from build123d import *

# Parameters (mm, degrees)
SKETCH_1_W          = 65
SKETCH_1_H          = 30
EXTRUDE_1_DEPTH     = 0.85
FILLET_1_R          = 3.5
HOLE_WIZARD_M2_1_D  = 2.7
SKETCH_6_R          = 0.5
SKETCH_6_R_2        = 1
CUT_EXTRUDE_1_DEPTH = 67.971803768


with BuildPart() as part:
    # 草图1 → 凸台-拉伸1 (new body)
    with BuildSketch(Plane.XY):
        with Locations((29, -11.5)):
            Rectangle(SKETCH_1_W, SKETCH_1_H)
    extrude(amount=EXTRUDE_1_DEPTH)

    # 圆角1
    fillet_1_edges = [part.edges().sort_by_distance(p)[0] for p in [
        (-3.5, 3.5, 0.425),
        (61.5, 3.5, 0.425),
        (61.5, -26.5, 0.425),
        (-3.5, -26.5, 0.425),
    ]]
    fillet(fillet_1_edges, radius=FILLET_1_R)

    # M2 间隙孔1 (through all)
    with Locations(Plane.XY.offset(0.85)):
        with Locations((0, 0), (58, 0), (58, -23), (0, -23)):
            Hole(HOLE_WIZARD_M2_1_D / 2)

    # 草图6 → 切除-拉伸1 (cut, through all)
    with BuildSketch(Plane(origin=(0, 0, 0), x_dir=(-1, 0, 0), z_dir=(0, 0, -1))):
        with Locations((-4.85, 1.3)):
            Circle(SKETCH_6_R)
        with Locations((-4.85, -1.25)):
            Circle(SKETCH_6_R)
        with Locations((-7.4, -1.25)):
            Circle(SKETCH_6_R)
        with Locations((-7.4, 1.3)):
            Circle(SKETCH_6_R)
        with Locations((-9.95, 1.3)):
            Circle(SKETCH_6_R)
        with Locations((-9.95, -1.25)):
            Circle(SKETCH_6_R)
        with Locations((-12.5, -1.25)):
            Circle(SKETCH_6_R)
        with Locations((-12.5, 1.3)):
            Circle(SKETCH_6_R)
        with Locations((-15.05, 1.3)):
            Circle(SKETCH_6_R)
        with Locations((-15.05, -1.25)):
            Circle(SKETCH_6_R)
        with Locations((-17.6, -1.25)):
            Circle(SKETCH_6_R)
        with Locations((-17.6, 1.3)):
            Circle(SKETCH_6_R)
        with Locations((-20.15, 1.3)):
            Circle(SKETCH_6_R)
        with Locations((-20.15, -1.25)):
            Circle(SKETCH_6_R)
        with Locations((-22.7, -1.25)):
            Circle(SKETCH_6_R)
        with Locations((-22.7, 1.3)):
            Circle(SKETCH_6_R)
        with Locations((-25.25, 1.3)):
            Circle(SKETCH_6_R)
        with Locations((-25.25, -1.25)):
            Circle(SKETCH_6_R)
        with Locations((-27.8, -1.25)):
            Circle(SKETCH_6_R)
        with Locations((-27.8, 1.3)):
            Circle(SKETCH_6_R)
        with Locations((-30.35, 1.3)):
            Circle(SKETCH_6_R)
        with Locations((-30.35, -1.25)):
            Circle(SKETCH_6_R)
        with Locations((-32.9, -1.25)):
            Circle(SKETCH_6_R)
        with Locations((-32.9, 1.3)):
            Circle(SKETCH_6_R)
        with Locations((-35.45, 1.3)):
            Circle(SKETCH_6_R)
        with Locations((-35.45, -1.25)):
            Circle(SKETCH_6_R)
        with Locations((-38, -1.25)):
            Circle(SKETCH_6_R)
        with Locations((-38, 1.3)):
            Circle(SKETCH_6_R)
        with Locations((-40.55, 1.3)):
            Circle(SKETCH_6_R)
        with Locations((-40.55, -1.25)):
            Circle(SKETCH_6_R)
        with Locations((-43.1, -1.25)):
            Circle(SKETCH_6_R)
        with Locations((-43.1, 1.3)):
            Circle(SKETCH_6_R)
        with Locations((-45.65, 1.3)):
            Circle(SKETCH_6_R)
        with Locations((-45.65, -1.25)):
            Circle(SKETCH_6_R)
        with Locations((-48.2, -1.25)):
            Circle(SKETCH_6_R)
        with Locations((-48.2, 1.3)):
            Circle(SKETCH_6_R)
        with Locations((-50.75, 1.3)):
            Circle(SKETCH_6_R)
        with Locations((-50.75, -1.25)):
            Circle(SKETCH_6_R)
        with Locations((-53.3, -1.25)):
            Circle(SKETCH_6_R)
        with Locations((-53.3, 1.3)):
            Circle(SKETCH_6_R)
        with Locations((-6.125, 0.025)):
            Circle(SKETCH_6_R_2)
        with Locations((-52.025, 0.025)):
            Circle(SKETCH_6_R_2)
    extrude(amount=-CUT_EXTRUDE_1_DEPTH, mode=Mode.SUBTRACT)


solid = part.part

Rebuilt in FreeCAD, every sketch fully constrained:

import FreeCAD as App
import Part
import Sketcher

V = App.Vector


def edges_at(feature, points):
    """Names of the edges that pass closest to the given points."""
    edges = feature.Shape.Edges
    near = lambda p: min(range(len(edges)), key=lambda i: edges[i].distToShape(Part.Vertex(*p))[0])
    return sorted({f"Edge{near(p) + 1}" for p in points})


def add_polygon(sketch, points):
    """Adds a closed chain of lines whose ends are joined by coincident constraints."""
    first, n = sketch.GeometryCount, len(points)
    for a, b in zip(points, points[1:] + points[:1]):
        sketch.addGeometry(Part.LineSegment(App.Vector(*a, 0), App.Vector(*b, 0)), False)
    for i in range(n):
        sketch.addConstraint(Sketcher.Constraint("Coincident", first + i, 2, first + (i + 1) % n, 1))

doc = App.newDocument("Part")
body = doc.addObject("PartDesign::Body", "Body")

# Sketch on XY plane
sketch1 = body.newObject("Sketcher::SketchObject", "Sketch")
sketch1.AttachmentSupport = (doc.getObject("XY_Plane"), [""])
sketch1.MapMode = "FlatFace"
add_polygon(sketch1, [(-4, 4), (-4, -26), (62, -26), (62, 4)])  # lines 0-3
sketch1.addConstraint([
    Sketcher.Constraint("Vertical", 0),
    Sketcher.Constraint("Horizontal", 1),
    Sketcher.Constraint("Vertical", 2),
    Sketcher.Constraint("Horizontal", 3),
    Sketcher.Constraint("DistanceX", 1, 1, 1, 2, 65.0),
    Sketcher.Constraint("DistanceY", 0, 2, 0, 1, 30.0),
    Sketcher.Constraint("DistanceX", 0, 2, -1, 1, 3.5),
    Sketcher.Constraint("DistanceY", 0, 2, -1, 1, 26.5),
])
pad1 = body.newObject("PartDesign::Pad", "Pad")
pad1.Profile = sketch1
pad1.Length = 0.85
doc.recompute()

fillet = body.newObject("PartDesign::Fillet", "Fillet")
fillet.Base = (pad1, edges_at(pad1, [
    (-3.5, 3.5, 0.425),
    (61.5, 3.5, 0.425),
    (61.5, -26.5, 0.425),
    (-3.5, -26.5, 0.425),
]))
fillet.Radius = 3.5

# Sketch on XY plane
sketch2 = body.newObject("Sketcher::SketchObject", "Sketch001")
sketch2.AttachmentSupport = (doc.getObject("XY_Plane"), [""])
sketch2.MapMode = "FlatFace"
sketch2.AttachmentOffset = App.Placement(V(0, 0, 0.85), App.Rotation())
sketch2.addGeometry([
    Part.Circle(V(0, 0, 0), V(0, 0, 1), 1.4),
    Part.Circle(V(58, 0, 0), V(0, 0, 1), 1.4),
    Part.Circle(V(58, -23, 0), V(0, 0, 1), 1.4),
    Part.Circle(V(0, -23, 0), V(0, 0, 1), 1.4),
], False)
sketch2.addConstraint([
    Sketcher.Constraint("Coincident", 0, 3, -1, 1),
    Sketcher.Constraint("Equal", 0, 1),
    Sketcher.Constraint("Equal", 1, 2),
    Sketcher.Constraint("Equal", 2, 3),
    Sketcher.Constraint("PointOnObject", 1, 3, -1),
    Sketcher.Constraint("PointOnObject", 3, 3, -2),
    Sketcher.Constraint("Horizontal", 2, 3, 3, 3),
    Sketcher.Constraint("Vertical", 1, 3, 2, 3),
    Sketcher.Constraint("Diameter", 0, 2.7),
    Sketcher.Constraint("DistanceX", -1, 1, 1, 3, 58.0),
    Sketcher.Constraint("DistanceY", 2, 3, -1, 1, 23.0),
])
doc.recompute()
hole = body.newObject("PartDesign::Hole", "Hole")
hole.Profile = sketch2
hole.ThreadType = "None"
hole.Diameter = 2.7
hole.DepthType = "ThroughAll"

# Sketch on XY plane
sketch3 = body.newObject("Sketcher::SketchObject", "Sketch002")
sketch3.AttachmentSupport = (doc.getObject("XY_Plane"), [""])
sketch3.MapMode = "FlatFace"
sketch3.addGeometry([
    Part.Circle(V(4.8, 1.3, 0), V(0, 0, 1), 0.5),  # 0
    Part.Circle(V(4.8, -1.2, 0), V(0, 0, 1), 0.5),  # 1
    Part.Circle(V(7.4, -1.2, 0), V(0, 0, 1), 0.5),  # 2
    Part.Circle(V(7.4, 1.3, 0), V(0, 0, 1), 0.5),  # 3
    Part.Circle(V(9.9, 1.3, 0), V(0, 0, 1), 0.5),  # 4
    Part.Circle(V(9.9, -1.2, 0), V(0, 0, 1), 0.5),  # 5
    Part.Circle(V(12.5, -1.2, 0), V(0, 0, 1), 0.5),  # 6
    Part.Circle(V(12.5, 1.3, 0), V(0, 0, 1), 0.5),  # 7
    Part.Circle(V(15.1, 1.3, 0), V(0, 0, 1), 0.5),  # 8
    Part.Circle(V(15.1, -1.2, 0), V(0, 0, 1), 0.5),  # 9
    Part.Circle(V(17.6, -1.2, 0), V(0, 0, 1), 0.5),  # 10
    Part.Circle(V(17.6, 1.3, 0), V(0, 0, 1), 0.5),  # 11
    Part.Circle(V(20.1, 1.3, 0), V(0, 0, 1), 0.5),  # 12
    Part.Circle(V(20.1, -1.2, 0), V(0, 0, 1), 0.5),  # 13
    Part.Circle(V(22.7, -1.2, 0), V(0, 0, 1), 0.5),  # 14
    Part.Circle(V(22.7, 1.3, 0), V(0, 0, 1), 0.5),  # 15
    Part.Circle(V(25.2, 1.3, 0), V(0, 0, 1), 0.5),  # 16
    Part.Circle(V(25.2, -1.2, 0), V(0, 0, 1), 0.5),  # 17
    Part.Circle(V(27.8, -1.2, 0), V(0, 0, 1), 0.5),  # 18
    Part.Circle(V(27.8, 1.3, 0), V(0, 0, 1), 0.5),  # 19
    Part.Circle(V(30.4, 1.3, 0), V(0, 0, 1), 0.5),  # 20
    Part.Circle(V(30.4, -1.2, 0), V(0, 0, 1), 0.5),  # 21
    Part.Circle(V(32.9, -1.2, 0), V(0, 0, 1), 0.5),  # 22
    Part.Circle(V(32.9, 1.3, 0), V(0, 0, 1), 0.5),  # 23
    Part.Circle(V(35.5, 1.3, 0), V(0, 0, 1), 0.5),  # 24
    Part.Circle(V(35.5, -1.2, 0), V(0, 0, 1), 0.5),  # 25
    Part.Circle(V(38, -1.2, 0), V(0, 0, 1), 0.5),  # 26
    Part.Circle(V(38, 1.3, 0), V(0, 0, 1), 0.5),  # 27
    Part.Circle(V(40.5, 1.3, 0), V(0, 0, 1), 0.5),  # 28
    Part.Circle(V(40.5, -1.2, 0), V(0, 0, 1), 0.5),  # 29
    Part.Circle(V(43.1, -1.2, 0), V(0, 0, 1), 0.5),  # 30
    Part.Circle(V(43.1, 1.3, 0), V(0, 0, 1), 0.5),  # 31
    Part.Circle(V(45.6, 1.3, 0), V(0, 0, 1), 0.5),  # 32
    Part.Circle(V(45.6, -1.2, 0), V(0, 0, 1), 0.5),  # 33
    Part.Circle(V(48.2, -1.2, 0), V(0, 0, 1), 0.5),  # 34
    Part.Circle(V(48.2, 1.3, 0), V(0, 0, 1), 0.5),  # 35
    Part.Circle(V(50.8, 1.3, 0), V(0, 0, 1), 0.5),  # 36
    Part.Circle(V(50.8, -1.2, 0), V(0, 0, 1), 0.5),  # 37
    Part.Circle(V(53.3, -1.2, 0), V(0, 0, 1), 0.5),  # 38
    Part.Circle(V(53.3, 1.3, 0), V(0, 0, 1), 0.5),  # 39
    Part.Circle(V(6.1, 0, 0), V(0, 0, 1), 1),  # 40
    Part.Circle(V(52, 0, 0), V(0, 0, 1), 1),  # 41
], False)
sketch3.addConstraint([
    Sketcher.Constraint("Equal", 0, 1),
    Sketcher.Constraint("Equal", 1, 2),
    Sketcher.Constraint("Equal", 2, 3),
    Sketcher.Constraint("Equal", 3, 4),
    Sketcher.Constraint("Equal", 4, 5),
    Sketcher.Constraint("Equal", 5, 6),
    Sketcher.Constraint("Equal", 6, 7),
    Sketcher.Constraint("Equal", 7, 8),
    Sketcher.Constraint("Equal", 8, 9),
    Sketcher.Constraint("Equal", 9, 10),
    Sketcher.Constraint("Equal", 10, 11),
    Sketcher.Constraint("Equal", 11, 12),
    Sketcher.Constraint("Equal", 12, 13),
    Sketcher.Constraint("Equal", 13, 14),
    Sketcher.Constraint("Equal", 14, 15),
    Sketcher.Constraint("Equal", 15, 16),
    Sketcher.Constraint("Equal", 16, 17),
    Sketcher.Constraint("Equal", 17, 18),
    Sketcher.Constraint("Equal", 18, 19),
    Sketcher.Constraint("Equal", 19, 20),
    Sketcher.Constraint("Equal", 20, 21),
    Sketcher.Constraint("Equal", 21, 22),
    Sketcher.Constraint("Equal", 22, 23),
    Sketcher.Constraint("Equal", 23, 24),
    Sketcher.Constraint("Equal", 24, 25),
    Sketcher.Constraint("Equal", 25, 26),
    Sketcher.Constraint("Equal", 26, 27),
    Sketcher.Constraint("Equal", 27, 28),
    Sketcher.Constraint("Equal", 28, 29),
    Sketcher.Constraint("Equal", 29, 30),
    Sketcher.Constraint("Equal", 30, 31),
    Sketcher.Constraint("Equal", 31, 32),
    Sketcher.Constraint("Equal", 32, 33),
    Sketcher.Constraint("Equal", 33, 34),
    Sketcher.Constraint("Equal", 34, 35),
    Sketcher.Constraint("Equal", 35, 36),
    Sketcher.Constraint("Equal", 36, 37),
    Sketcher.Constraint("Equal", 37, 38),
    Sketcher.Constraint("Equal", 38, 39),
    Sketcher.Constraint("Equal", 40, 41),
    Sketcher.Constraint("Horizontal", 1, 3, 2, 3),
    Sketcher.Constraint("Horizontal", 0, 3, 3, 3),
    Sketcher.Constraint("Horizontal", 3, 3, 4, 3),
    Sketcher.Constraint("Horizontal", 2, 3, 5, 3),
    Sketcher.Constraint("Horizontal", 5, 3, 6, 3),
    Sketcher.Constraint("Horizontal", 4, 3, 7, 3),
    Sketcher.Constraint("Horizontal", 7, 3, 8, 3),
    Sketcher.Constraint("Horizontal", 6, 3, 9, 3),
    Sketcher.Constraint("Horizontal", 9, 3, 10, 3),
    Sketcher.Constraint("Horizontal", 8, 3, 11, 3),
    Sketcher.Constraint("Horizontal", 11, 3, 12, 3),
    Sketcher.Constraint("Horizontal", 10, 3, 13, 3),
    Sketcher.Constraint("Horizontal", 13, 3, 14, 3),
    Sketcher.Constraint("Horizontal", 12, 3, 15, 3),
    Sketcher.Constraint("Horizontal", 15, 3, 16, 3),
    Sketcher.Constraint("Horizontal", 14, 3, 17, 3),
    Sketcher.Constraint("Horizontal", 17, 3, 18, 3),
    Sketcher.Constraint("Horizontal", 16, 3, 19, 3),
    Sketcher.Constraint("Horizontal", 19, 3, 20, 3),
    Sketcher.Constraint("Horizontal", 18, 3, 21, 3),
    Sketcher.Constraint("Horizontal", 21, 3, 22, 3),
    Sketcher.Constraint("Horizontal", 20, 3, 23, 3),
    Sketcher.Constraint("Horizontal", 23, 3, 24, 3),
    Sketcher.Constraint("Horizontal", 22, 3, 25, 3),
    Sketcher.Constraint("Horizontal", 25, 3, 26, 3),
    Sketcher.Constraint("Horizontal", 24, 3, 27, 3),
    Sketcher.Constraint("Horizontal", 27, 3, 28, 3),
    Sketcher.Constraint("Horizontal", 26, 3, 29, 3),
    Sketcher.Constraint("Horizontal", 29, 3, 30, 3),
    Sketcher.Constraint("Horizontal", 28, 3, 31, 3),
    Sketcher.Constraint("Horizontal", 31, 3, 32, 3),
    Sketcher.Constraint("Horizontal", 30, 3, 33, 3),
    Sketcher.Constraint("Horizontal", 33, 3, 34, 3),
    Sketcher.Constraint("Horizontal", 32, 3, 35, 3),
    Sketcher.Constraint("Horizontal", 35, 3, 36, 3),
    Sketcher.Constraint("Horizontal", 34, 3, 37, 3),
    Sketcher.Constraint("Horizontal", 37, 3, 38, 3),
    Sketcher.Constraint("Horizontal", 36, 3, 39, 3),
    Sketcher.Constraint("Horizontal", 40, 3, 41, 3),
    Sketcher.Constraint("Vertical", 0, 3, 1, 3),
    Sketcher.Constraint("Vertical", 2, 3, 3, 3),
    Sketcher.Constraint("Vertical", 4, 3, 5, 3),
    Sketcher.Constraint("Vertical", 6, 3, 7, 3),
    Sketcher.Constraint("Vertical", 8, 3, 9, 3),
    Sketcher.Constraint("Vertical", 10, 3, 11, 3),
    Sketcher.Constraint("Vertical", 12, 3, 13, 3),
    Sketcher.Constraint("Vertical", 14, 3, 15, 3),
    Sketcher.Constraint("Vertical", 16, 3, 17, 3),
    Sketcher.Constraint("Vertical", 18, 3, 19, 3),
    Sketcher.Constraint("Vertical", 20, 3, 21, 3),
    Sketcher.Constraint("Vertical", 22, 3, 23, 3),
    Sketcher.Constraint("Vertical", 24, 3, 25, 3),
    Sketcher.Constraint("Vertical", 26, 3, 27, 3),
    Sketcher.Constraint("Vertical", 28, 3, 29, 3),
    Sketcher.Constraint("Vertical", 30, 3, 31, 3),
    Sketcher.Constraint("Vertical", 32, 3, 33, 3),
    Sketcher.Constraint("Vertical", 34, 3, 35, 3),
    Sketcher.Constraint("Vertical", 36, 3, 37, 3),
    Sketcher.Constraint("Vertical", 38, 3, 39, 3),
    Sketcher.Constraint("Diameter", 0, 1.0),
    Sketcher.Constraint("Diameter", 40, 2.0),
    Sketcher.Constraint("DistanceX", -1, 1, 26, 3, 38.0),
    Sketcher.Constraint("DistanceY", -1, 1, 0, 3, 1.3),
    Sketcher.Constraint("DistanceX", -1, 1, 2, 3, 7.4),
    Sketcher.Constraint("DistanceX", -1, 1, 6, 3, 12.5),
    Sketcher.Constraint("DistanceX", -1, 1, 10, 3, 17.6),
    Sketcher.Constraint("DistanceX", -1, 1, 14, 3, 22.7),
    Sketcher.Constraint("DistanceX", -1, 1, 18, 3, 27.8),
    Sketcher.Constraint("DistanceX", -1, 1, 22, 3, 32.9),
    Sketcher.Constraint("DistanceX", -1, 1, 30, 3, 43.1),
    Sketcher.Constraint("DistanceX", -1, 1, 34, 3, 48.2),
    Sketcher.Constraint("DistanceX", -1, 1, 38, 3, 53.3),
    Sketcher.Constraint("DistanceX", 0, 3, 4, 3, 5.1),
    Sketcher.Constraint("DistanceX", 4, 3, 8, 3, 5.1),
    Sketcher.Constraint("DistanceX", 8, 3, 12, 3, 5.1),
    Sketcher.Constraint("DistanceX", 12, 3, 16, 3, 5.1),
    Sketcher.Constraint("DistanceX", 16, 3, 20, 3, 5.1),
    Sketcher.Constraint("DistanceX", 20, 3, 24, 3, 5.1),
    Sketcher.Constraint("DistanceX", 24, 3, 28, 3, 5.1),
    Sketcher.Constraint("DistanceX", 28, 3, 32, 3, 5.1),
    Sketcher.Constraint("DistanceX", 32, 3, 36, 3, 5.1),
    Sketcher.Constraint("DistanceX", -1, 1, 0, 3, 4.85),
    Sketcher.Constraint("DistanceY", 1, 3, -1, 1, 1.25),
    Sketcher.Constraint("DistanceX", -1, 1, 40, 3, 6.125),
    Sketcher.Constraint("DistanceY", -1, 1, 40, 3, 0.025),
    Sketcher.Constraint("DistanceX", -1, 1, 41, 3, 52.025),
])
pocket1 = body.newObject("PartDesign::Pocket", "Pocket")
pocket1.Profile = sketch3
pocket1.Type = "ThroughAll"
pocket1.Reversed = True

doc.recompute()
